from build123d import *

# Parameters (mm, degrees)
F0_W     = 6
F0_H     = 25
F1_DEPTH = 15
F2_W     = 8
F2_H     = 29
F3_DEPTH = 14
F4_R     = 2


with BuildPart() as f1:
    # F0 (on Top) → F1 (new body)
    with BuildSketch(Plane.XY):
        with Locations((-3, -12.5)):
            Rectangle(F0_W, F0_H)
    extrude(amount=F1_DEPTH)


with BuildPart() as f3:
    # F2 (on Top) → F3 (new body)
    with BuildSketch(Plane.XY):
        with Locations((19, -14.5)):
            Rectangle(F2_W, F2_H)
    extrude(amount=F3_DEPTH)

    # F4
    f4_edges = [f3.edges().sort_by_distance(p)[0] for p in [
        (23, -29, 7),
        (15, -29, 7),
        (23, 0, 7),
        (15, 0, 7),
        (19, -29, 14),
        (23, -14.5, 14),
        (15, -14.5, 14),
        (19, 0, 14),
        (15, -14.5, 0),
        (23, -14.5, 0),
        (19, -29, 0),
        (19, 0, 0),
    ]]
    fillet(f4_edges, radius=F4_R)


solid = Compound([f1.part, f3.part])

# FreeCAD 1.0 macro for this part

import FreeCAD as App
import Part
import Sketcher

V = App.Vector
Q = App.Units.Quantity

doc = App.newDocument("Part")
params = doc.addObject("Spreadsheet::Sheet", "Params")
for row, (alias, value) in enumerate([
    ("sketch1_width", "6 mm"),
    ("sketch1_height", "25 mm"),
    ("pad1_length", "15 mm"),
    ("sketch2_width", "8 mm"),
    ("sketch2_height", "29 mm"),
    ("pad2_length", "14 mm"),
    ("fillet_radius", "2 mm"),
], start=1):
    params.set(f"A{row}", alias)
    params.set(f"B{row}", "=" + value)
    params.setAlias(f"B{row}", alias)

body = doc.addObject("PartDesign::Body", "Body")

# Sketch on XY plane
sketch1 = body.newObject("Sketcher::SketchObject", "Sketch")
sketch1.AttachmentSupport = (doc.getObject("XY_Plane"), [""])
sketch1.MapMode = "FlatFace"
sketch1.addGeometry([
    Part.LineSegment(V(-6, 0, 0), V(-6, -25, 0)),
    Part.LineSegment(V(-6, -25, 0), V(0, -25, 0)),
    Part.LineSegment(V(0, -25, 0), V(0, 0, 0)),
    Part.LineSegment(V(0, 0, 0), V(-6, 0, 0)),
], False)
sketch1.addConstraint([
    Sketcher.Constraint("Coincident", 0, 2, 1, 1),
    Sketcher.Constraint("Coincident", 1, 2, 2, 1),
    Sketcher.Constraint("Coincident", 2, 2, 3, 1),
    Sketcher.Constraint("Coincident", 3, 2, 0, 1),
    Sketcher.Constraint("Vertical", 0),
    Sketcher.Constraint("Horizontal", 1),
    Sketcher.Constraint("Vertical", 2),
    Sketcher.Constraint("Horizontal", 3),
    Sketcher.Constraint("Coincident", 2, 2, -1, 1),
    Sketcher.Constraint("DistanceX", 1, 1, 1, 2, Q("6 mm")),
    Sketcher.Constraint("DistanceY", 0, 2, 0, 1, Q("25 mm")),
])
sketch1.setExpression("Constraints[9]", "Params.sketch1_width")
sketch1.setExpression("Constraints[10]", "Params.sketch1_height")
pad1 = body.newObject("PartDesign::Pad", "Pad")
pad1.Profile = sketch1
pad1.setExpression("Length", "Params.pad1_length")
body2 = doc.addObject("PartDesign::Body", "Body001")

# Sketch on XY plane
sketch2 = body2.newObject("Sketcher::SketchObject", "Sketch001")
sketch2.AttachmentSupport = (doc.getObject("XY_Plane001"), [""])
sketch2.MapMode = "FlatFace"
sketch2.addGeometry([
    Part.LineSegment(V(15, 0, 0), V(15, -29, 0)),
    Part.LineSegment(V(15, -29, 0), V(23, -29, 0)),
    Part.LineSegment(V(23, -29, 0), V(23, 0, 0)),
    Part.LineSegment(V(23, 0, 0), V(15, 0, 0)),
], False)
sketch2.addConstraint([
    Sketcher.Constraint("Coincident", 0, 2, 1, 1),
    Sketcher.Constraint("Coincident", 1, 2, 2, 1),
    Sketcher.Constraint("Coincident", 2, 2, 3, 1),
    Sketcher.Constraint("Coincident", 3, 2, 0, 1),
    Sketcher.Constraint("Vertical", 0),
    Sketcher.Constraint("Horizontal", 1),
    Sketcher.Constraint("Vertical", 2),
    Sketcher.Constraint("Horizontal", 3),
    Sketcher.Constraint("PointOnObject", 2, 2, -1),
    Sketcher.Constraint("DistanceX", 1, 1, 1, 2, Q("8 mm")),
    Sketcher.Constraint("DistanceY", 0, 2, 0, 1, Q("29 mm")),
    Sketcher.Constraint("DistanceX", -1, 1, 0, 2, Q("15 mm")),
])
sketch2.setExpression("Constraints[9]", "Params.sketch2_width")
sketch2.setExpression("Constraints[10]", "Params.sketch2_height")
pad2 = body2.newObject("PartDesign::Pad", "Pad001")
pad2.Profile = sketch2
pad2.setExpression("Length", "Params.pad2_length")
doc.recompute()

fillet = body2.newObject("PartDesign::Fillet", "Fillet")
fillet.Base = (pad2, ["Edge1"])
fillet.UseAllEdges = True
fillet.setExpression("Radius", "Params.fillet_radius")

doc.recompute()
